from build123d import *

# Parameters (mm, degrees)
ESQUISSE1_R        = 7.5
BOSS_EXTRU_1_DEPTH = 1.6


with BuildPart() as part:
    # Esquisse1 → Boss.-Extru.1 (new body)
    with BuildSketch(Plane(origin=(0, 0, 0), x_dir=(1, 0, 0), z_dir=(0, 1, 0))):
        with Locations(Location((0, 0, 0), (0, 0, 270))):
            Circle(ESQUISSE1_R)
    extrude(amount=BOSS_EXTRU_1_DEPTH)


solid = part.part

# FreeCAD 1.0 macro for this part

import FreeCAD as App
import Part
import Sketcher

doc = App.newDocument("Part")
body = doc.addObject("PartDesign::Body", "Body")

# Sketch on XZ plane
sketch1 = body.newObject("Sketcher::SketchObject", "Sketch")
sketch1.AttachmentSupport = (doc.getObject("XZ_Plane"), [""])
sketch1.MapMode = "FlatFace"
sketch1.addGeometry(Part.Circle(App.Vector(0, 0, 0), App.Vector(0, 0, 1), 8), False)
sketch1.addConstraint([
    Sketcher.Constraint("Coincident", 0, 3, -1, 1),
    Sketcher.Constraint("Diameter", 0, 15.0),
])
pad1 = body.newObject("PartDesign::Pad", "Pad")
pad1.Profile = sketch1
pad1.Length = 1.6
pad1.Reversed = True

doc.recompute()
